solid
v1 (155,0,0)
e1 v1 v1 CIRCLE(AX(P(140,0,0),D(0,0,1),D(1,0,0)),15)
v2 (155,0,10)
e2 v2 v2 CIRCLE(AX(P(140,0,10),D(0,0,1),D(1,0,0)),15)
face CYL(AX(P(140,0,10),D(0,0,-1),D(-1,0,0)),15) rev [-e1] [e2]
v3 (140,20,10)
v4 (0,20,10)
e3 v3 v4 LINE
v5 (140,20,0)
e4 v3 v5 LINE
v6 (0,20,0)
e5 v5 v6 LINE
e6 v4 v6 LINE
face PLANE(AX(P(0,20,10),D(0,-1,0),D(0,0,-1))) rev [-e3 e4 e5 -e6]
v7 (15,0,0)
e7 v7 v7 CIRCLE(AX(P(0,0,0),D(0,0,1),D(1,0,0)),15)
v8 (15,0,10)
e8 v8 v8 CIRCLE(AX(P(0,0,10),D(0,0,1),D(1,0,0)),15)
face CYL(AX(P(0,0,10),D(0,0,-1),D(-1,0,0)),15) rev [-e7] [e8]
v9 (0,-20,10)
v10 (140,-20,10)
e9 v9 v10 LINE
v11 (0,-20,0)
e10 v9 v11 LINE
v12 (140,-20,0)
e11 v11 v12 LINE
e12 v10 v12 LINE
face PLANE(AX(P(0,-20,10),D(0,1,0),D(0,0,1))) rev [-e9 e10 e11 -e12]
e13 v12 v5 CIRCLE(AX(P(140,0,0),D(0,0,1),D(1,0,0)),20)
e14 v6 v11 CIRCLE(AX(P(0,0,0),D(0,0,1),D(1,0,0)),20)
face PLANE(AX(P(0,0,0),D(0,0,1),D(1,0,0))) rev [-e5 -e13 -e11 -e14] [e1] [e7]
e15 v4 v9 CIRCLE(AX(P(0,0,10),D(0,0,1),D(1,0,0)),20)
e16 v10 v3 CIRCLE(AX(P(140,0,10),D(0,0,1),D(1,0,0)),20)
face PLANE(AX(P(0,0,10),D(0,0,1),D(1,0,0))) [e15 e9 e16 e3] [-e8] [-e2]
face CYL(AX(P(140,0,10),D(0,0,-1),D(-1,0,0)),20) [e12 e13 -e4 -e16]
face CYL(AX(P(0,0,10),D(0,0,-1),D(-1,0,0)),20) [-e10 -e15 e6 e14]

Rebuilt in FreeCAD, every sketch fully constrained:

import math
import FreeCAD as App
import Part
import Sketcher

doc = App.newDocument("Part")
body = doc.addObject("PartDesign::Body", "Body")

sketch1 = doc.addObject("Sketcher::SketchObject", "Sketch")
body.addObject(sketch1)
sketch1.AttachmentSupport = (doc.XY_Plane, [""])
sketch1.MapMode = "FlatFace"
sketch1.addGeometry([
    Part.LineSegment(App.Vector(140, 20, 0), App.Vector(0, 20, 0)),
    Part.ArcOfCircle(Part.Circle(App.Vector(0, 0, 0), App.Vector(0, 0, 1), 20), math.radians(90), math.radians(270)),
    Part.LineSegment(App.Vector(0, -20, 0), App.Vector(140, -20, 0)),
    Part.ArcOfCircle(Part.Circle(App.Vector(140, 0, 0), App.Vector(0, 0, 1), 20), math.radians(-90), math.radians(90)),
    Part.Circle(App.Vector(140, 0, 0), App.Vector(0, 0, 1), 15),
    Part.Circle(App.Vector(0, 0, 0), App.Vector(0, 0, 1), 15),
], False)
sketch1.addConstraint([
    Sketcher.Constraint("Tangent", 0, 2, 1, 1),
    Sketcher.Constraint("Tangent", 1, 2, 2, 1),
    Sketcher.Constraint("Tangent", 2, 2, 3, 1),
    Sketcher.Constraint("Tangent", 3, 2, 0, 1),
    Sketcher.Constraint("Horizontal", 0),
    Sketcher.Constraint("Horizontal", 2),
    Sketcher.Constraint("Coincident", 1, 3, -1, 1),
    Sketcher.Constraint("Coincident", 5, 3, -1, 1),
    Sketcher.Constraint("Coincident", 4, 3, 3, 3),
    Sketcher.Constraint("Equal", 4, 5),
    Sketcher.Constraint("Diameter", 4, 30.0),
    Sketcher.Constraint("Radius", 1, 20.0),
    Sketcher.Constraint("DistanceX", 0, 2, 0, 1, 140.0),
])
pad1 = doc.addObject("PartDesign::Pad", "Pad")
body.addObject(pad1)
pad1.Profile = sketch1
pad1.Length = 10

doc.recompute()
